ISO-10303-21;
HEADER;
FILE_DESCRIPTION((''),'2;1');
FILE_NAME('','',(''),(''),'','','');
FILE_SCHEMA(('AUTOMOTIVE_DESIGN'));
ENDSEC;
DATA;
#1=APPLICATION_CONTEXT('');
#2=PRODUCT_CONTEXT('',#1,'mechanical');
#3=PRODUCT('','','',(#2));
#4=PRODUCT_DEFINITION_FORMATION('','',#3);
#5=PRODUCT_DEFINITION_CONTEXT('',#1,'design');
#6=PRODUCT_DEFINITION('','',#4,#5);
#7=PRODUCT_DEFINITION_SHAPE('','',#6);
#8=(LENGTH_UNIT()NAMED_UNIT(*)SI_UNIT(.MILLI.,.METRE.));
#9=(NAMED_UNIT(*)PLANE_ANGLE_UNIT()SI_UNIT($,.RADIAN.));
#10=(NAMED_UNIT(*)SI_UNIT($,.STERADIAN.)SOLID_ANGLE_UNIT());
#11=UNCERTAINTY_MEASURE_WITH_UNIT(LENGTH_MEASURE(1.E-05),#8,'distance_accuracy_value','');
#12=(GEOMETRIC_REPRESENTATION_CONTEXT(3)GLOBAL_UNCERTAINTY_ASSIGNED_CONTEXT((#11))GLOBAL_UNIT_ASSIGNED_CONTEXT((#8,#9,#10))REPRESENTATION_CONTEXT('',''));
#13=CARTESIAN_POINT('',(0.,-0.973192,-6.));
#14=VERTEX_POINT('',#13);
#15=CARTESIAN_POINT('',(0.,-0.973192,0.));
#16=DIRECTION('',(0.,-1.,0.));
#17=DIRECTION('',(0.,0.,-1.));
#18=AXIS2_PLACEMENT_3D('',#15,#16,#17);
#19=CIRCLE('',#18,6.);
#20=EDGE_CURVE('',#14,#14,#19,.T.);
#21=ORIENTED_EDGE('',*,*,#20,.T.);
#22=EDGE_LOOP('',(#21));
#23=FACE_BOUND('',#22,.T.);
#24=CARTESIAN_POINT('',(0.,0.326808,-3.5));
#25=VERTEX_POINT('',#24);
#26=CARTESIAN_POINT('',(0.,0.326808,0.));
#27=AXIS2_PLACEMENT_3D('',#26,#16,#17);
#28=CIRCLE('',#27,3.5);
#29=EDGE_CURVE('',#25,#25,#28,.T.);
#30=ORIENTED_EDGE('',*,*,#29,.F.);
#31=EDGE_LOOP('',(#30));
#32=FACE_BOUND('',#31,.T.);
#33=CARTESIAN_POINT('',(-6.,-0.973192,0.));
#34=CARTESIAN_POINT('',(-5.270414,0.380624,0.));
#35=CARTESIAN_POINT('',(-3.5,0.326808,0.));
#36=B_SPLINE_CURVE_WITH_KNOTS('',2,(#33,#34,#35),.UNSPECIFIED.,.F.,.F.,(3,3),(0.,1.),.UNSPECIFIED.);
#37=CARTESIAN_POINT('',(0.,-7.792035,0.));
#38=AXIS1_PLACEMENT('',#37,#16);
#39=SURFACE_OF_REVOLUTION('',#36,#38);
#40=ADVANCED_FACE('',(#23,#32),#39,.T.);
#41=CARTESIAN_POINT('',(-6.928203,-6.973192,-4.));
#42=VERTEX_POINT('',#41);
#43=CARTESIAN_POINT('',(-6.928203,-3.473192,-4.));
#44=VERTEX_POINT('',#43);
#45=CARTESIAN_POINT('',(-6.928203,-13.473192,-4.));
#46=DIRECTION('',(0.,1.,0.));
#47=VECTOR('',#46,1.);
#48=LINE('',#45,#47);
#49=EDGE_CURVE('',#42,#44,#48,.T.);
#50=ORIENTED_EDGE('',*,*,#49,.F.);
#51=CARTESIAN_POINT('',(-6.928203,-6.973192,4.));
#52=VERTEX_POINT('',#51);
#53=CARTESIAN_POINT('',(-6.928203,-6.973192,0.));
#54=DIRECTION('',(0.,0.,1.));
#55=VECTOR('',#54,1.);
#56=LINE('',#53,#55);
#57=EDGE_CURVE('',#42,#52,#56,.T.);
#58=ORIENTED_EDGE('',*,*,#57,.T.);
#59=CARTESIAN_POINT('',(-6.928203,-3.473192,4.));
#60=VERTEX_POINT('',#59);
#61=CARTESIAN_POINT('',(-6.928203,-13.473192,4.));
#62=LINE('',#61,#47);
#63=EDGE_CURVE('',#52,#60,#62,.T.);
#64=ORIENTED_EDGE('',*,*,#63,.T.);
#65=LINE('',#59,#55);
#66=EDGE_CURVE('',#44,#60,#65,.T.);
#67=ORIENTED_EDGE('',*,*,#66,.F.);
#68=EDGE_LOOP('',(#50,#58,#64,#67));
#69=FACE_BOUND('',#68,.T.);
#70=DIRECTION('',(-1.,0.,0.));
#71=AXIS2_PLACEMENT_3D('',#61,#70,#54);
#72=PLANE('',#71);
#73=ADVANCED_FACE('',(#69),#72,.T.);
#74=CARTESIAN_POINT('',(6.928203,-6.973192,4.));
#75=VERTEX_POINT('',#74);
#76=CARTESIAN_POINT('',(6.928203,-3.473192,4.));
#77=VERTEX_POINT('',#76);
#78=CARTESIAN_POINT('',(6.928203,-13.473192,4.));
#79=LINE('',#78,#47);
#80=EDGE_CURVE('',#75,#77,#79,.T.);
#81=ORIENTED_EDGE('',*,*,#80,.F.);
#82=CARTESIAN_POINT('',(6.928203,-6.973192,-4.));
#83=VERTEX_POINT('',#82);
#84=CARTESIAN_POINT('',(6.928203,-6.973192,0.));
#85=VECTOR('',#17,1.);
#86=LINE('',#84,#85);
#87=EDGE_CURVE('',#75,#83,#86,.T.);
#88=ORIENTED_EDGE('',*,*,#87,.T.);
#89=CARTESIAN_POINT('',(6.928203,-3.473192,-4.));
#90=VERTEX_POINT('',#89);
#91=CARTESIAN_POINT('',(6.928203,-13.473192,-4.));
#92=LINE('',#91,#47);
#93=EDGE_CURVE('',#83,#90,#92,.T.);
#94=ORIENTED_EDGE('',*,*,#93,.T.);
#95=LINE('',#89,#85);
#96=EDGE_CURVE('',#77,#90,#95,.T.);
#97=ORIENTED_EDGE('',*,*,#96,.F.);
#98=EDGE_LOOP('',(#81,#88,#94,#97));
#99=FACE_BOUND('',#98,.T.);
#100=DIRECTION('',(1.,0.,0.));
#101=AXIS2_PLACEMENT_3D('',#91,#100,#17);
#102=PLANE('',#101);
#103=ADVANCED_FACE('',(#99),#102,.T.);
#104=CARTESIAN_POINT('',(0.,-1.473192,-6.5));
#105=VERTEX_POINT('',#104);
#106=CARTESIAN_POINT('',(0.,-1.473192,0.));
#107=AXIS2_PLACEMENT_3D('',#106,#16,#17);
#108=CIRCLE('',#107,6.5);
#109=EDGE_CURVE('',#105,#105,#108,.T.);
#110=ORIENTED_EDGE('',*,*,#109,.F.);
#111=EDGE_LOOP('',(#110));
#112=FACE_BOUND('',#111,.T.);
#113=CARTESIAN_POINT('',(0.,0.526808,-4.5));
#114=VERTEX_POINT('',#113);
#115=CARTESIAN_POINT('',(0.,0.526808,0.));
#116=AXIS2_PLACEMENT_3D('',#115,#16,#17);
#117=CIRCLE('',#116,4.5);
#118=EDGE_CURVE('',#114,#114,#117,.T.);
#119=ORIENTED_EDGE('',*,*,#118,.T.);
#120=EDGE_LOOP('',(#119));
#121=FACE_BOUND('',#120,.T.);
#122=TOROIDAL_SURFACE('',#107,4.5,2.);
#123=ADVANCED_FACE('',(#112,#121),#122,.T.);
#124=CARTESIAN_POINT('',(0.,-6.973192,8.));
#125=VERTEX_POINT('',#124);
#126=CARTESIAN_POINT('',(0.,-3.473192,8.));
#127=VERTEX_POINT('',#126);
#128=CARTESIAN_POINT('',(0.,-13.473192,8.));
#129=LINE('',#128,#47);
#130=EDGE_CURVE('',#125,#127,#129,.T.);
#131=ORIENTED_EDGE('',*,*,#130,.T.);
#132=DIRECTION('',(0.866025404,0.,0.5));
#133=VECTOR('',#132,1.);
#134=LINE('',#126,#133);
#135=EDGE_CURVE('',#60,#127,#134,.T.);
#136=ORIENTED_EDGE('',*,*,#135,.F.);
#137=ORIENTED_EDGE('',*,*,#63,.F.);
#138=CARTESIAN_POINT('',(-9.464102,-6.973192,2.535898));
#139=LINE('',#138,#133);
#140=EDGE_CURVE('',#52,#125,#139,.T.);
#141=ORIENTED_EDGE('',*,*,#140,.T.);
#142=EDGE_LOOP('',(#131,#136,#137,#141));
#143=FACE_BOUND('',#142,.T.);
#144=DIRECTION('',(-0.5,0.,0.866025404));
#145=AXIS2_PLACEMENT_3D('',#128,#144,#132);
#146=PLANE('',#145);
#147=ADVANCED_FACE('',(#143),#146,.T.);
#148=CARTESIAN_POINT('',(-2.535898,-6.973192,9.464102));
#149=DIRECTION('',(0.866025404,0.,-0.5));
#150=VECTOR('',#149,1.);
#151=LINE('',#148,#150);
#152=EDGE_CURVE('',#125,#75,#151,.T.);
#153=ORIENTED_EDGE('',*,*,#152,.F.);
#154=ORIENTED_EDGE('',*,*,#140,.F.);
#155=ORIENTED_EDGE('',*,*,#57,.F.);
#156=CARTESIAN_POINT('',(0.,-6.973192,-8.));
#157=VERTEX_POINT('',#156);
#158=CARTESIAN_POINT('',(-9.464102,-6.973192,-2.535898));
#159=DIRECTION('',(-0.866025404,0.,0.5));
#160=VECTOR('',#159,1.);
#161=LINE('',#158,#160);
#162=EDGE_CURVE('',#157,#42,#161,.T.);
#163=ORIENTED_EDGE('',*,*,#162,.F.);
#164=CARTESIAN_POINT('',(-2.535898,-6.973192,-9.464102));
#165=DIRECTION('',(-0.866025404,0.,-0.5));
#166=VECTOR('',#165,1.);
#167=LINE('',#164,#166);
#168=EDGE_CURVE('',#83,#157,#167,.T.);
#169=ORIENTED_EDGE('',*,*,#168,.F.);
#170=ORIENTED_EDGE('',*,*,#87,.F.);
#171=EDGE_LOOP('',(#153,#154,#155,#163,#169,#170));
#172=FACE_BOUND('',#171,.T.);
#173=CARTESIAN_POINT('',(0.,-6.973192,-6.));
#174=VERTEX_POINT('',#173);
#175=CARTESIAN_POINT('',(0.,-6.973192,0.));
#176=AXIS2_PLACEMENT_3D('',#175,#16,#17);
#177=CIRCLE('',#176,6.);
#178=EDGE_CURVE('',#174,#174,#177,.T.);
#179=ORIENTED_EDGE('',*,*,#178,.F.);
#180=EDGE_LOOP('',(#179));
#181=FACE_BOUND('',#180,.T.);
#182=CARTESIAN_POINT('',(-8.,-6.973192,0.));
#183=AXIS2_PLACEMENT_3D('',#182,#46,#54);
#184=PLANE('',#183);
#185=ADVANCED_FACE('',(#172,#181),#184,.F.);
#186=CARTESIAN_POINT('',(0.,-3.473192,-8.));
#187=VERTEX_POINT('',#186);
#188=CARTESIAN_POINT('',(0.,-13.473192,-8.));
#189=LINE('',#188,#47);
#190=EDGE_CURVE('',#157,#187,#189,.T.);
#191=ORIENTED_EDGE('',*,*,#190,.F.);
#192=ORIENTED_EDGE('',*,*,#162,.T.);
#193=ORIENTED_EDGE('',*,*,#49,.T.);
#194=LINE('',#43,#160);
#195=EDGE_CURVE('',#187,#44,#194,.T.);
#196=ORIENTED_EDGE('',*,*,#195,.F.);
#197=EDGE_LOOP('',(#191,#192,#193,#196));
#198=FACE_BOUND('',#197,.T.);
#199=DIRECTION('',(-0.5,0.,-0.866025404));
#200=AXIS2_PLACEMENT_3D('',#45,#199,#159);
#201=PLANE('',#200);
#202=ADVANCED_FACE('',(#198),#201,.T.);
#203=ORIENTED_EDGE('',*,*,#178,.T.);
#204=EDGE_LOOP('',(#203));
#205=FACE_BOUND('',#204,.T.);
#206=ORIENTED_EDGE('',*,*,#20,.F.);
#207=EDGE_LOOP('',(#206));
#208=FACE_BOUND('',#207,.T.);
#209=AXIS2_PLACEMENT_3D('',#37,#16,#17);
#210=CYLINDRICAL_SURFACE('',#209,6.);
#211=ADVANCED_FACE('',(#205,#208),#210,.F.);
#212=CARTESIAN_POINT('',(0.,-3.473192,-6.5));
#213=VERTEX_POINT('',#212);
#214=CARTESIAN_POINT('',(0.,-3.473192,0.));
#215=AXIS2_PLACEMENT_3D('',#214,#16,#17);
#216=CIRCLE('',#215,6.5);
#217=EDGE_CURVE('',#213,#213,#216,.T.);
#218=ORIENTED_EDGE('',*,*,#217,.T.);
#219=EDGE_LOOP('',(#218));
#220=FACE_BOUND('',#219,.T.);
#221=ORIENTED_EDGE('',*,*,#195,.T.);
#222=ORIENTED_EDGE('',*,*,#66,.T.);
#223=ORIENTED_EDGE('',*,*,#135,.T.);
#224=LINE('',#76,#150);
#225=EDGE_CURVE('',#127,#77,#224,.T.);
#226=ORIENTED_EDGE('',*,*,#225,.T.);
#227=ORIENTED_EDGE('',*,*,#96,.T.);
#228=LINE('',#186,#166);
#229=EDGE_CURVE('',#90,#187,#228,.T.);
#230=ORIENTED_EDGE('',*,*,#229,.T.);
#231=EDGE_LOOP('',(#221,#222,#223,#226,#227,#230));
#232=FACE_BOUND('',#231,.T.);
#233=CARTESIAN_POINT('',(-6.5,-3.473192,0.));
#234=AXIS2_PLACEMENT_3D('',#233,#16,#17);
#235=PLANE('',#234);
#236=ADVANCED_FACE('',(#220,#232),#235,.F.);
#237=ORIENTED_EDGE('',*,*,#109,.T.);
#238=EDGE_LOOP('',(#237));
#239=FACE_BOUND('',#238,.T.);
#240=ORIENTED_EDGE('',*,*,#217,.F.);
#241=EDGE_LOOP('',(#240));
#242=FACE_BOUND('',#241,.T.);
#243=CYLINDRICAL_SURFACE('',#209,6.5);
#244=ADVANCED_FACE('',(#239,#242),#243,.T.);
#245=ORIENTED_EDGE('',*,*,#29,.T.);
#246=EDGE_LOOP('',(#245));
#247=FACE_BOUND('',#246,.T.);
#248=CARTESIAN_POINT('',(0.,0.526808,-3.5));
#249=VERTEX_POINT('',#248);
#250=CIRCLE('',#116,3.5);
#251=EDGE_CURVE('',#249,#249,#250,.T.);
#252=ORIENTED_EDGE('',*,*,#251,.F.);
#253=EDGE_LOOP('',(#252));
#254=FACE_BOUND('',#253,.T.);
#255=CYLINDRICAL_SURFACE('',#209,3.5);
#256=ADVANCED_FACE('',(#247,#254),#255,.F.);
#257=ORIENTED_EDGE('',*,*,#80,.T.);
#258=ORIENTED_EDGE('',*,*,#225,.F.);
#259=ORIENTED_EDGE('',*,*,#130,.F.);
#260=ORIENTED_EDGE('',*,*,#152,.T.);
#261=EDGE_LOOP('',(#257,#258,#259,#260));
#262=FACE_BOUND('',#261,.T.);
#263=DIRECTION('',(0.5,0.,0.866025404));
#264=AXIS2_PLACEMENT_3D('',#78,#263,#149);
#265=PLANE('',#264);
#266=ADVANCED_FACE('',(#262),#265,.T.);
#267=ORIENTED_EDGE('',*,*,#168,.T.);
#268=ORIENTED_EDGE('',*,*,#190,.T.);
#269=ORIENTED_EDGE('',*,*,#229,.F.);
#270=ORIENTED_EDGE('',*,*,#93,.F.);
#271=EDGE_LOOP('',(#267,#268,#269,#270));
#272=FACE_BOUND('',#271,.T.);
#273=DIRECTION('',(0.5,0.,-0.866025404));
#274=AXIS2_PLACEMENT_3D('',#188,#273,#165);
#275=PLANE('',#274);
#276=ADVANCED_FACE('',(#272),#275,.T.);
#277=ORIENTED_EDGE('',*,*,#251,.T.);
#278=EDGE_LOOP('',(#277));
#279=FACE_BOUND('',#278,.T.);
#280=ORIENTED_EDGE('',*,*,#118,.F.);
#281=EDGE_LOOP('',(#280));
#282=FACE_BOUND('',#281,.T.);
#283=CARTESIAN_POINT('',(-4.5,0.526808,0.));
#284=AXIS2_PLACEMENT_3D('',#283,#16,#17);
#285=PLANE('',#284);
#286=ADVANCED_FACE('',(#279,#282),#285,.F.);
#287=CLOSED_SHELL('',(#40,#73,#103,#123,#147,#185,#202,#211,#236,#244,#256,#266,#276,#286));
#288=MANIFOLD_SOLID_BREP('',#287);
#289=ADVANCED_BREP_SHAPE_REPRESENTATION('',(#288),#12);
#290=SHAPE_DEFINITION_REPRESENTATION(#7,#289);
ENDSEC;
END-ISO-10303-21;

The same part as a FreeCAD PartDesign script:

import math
import FreeCAD as App
import Part
import Sketcher
Q = App.Units.Quantity

doc = App.newDocument("Part")
params = doc.addObject("Spreadsheet::Sheet", "Params")
for row, (alias, value) in enumerate([
    ("sketch1_radius", "2 mm"),
    ("sketch1_width", "2 mm"),
    ("sketch1_width2", "1 mm"),
    ("sketch1_height", "6 mm"),
    ("sketch1_height2", "0.2 mm"),
    ("revolution_angle", "360 deg"),
    ("sketch2_height", "8 mm"),
    ("sketch2_length", "8 mm"),
    ("pocket1_length", "10 mm"),
], start=1):
    params.set(f"A{row}", alias)
    params.set(f"B{row}", "=" + value)
    params.setAlias(f"B{row}", alias)

body = doc.addObject("PartDesign::Body", "Body")

# Sketch on XY plane
sketch1 = body.newObject("Sketcher::SketchObject", "Sketch")
sketch1.AttachmentSupport = (doc.getObject("XY_Plane"), [""])
sketch1.MapMode = "FlatFace"
sketch1.addGeometry(Part.LineSegment(App.Vector(-8, -6.973192, 0), App.Vector(-6, -6.973192, 0)), False)
sketch1.addGeometry(Part.LineSegment(App.Vector(-6, -6.973192, 0), App.Vector(-6, -0.973192, 0)), False)
sketch1.addGeometry(Part.BSplineCurve([App.Vector(-6, -0.973192, 0), App.Vector(-5.270414, 0.380624, 0), App.Vector(-3.5, 0.326808, 0)], [3, 3], [0, 1], False, 2, [1, 1, 1], False), False)
sketch1.addGeometry(Part.LineSegment(App.Vector(-3.5, 0.326808, 0), App.Vector(-3.5, 0.526808, 0)), False)
sketch1.addGeometry(Part.LineSegment(App.Vector(-3.5, 0.526808, 0), App.Vector(-4.5, 0.526808, 0)), False)
sketch1.addGeometry(Part.ArcOfCircle(Part.Circle(App.Vector(-4.5, -1.473192, 0), App.Vector(0, 0, 1), 2), math.radians(90), math.radians(180)), False)
sketch1.addGeometry(Part.LineSegment(App.Vector(-6.5, -1.473192, 0), App.Vector(-6.5, -3.473192, 0)), False)
sketch1.addGeometry(Part.LineSegment(App.Vector(-6.5, -3.473192, 0), App.Vector(-8, -3.473192, 0)), False)
sketch1.addGeometry(Part.LineSegment(App.Vector(-8, -3.473192, 0), App.Vector(-8, -6.973192, 0)), False)
sketch1.addConstraint(Sketcher.Constraint("Block", 2))
sketch1.addConstraint(Sketcher.Constraint("Coincident", 0, 2, 1, 1))
sketch1.addConstraint(Sketcher.Constraint("Coincident", 1, 2, 2, 1))
sketch1.addConstraint(Sketcher.Constraint("Coincident", 2, 2, 3, 1))
sketch1.addConstraint(Sketcher.Constraint("Coincident", 3, 2, 4, 1))
sketch1.addConstraint(Sketcher.Constraint("Tangent", 4, 2, 5, 1))
sketch1.addConstraint(Sketcher.Constraint("Tangent", 5, 2, 6, 1))
sketch1.addConstraint(Sketcher.Constraint("Coincident", 6, 2, 7, 1))
sketch1.addConstraint(Sketcher.Constraint("Coincident", 7, 2, 8, 1))
sketch1.addConstraint(Sketcher.Constraint("Coincident", 8, 2, 0, 1))
sketch1.addConstraint(Sketcher.Constraint("Horizontal", 0))
sketch1.addConstraint(Sketcher.Constraint("Vertical", 1))
sketch1.addConstraint(Sketcher.Constraint("Vertical", 3))
sketch1.addConstraint(Sketcher.Constraint("Horizontal", 4))
sketch1.addConstraint(Sketcher.Constraint("Vertical", 6))
sketch1.addConstraint(Sketcher.Constraint("Horizontal", 7))
sketch1.addConstraint(Sketcher.Constraint("Vertical", 8))
sketch1.addConstraint(Sketcher.Constraint("Equal", 0, 6))
sketch1.addConstraint(Sketcher.Constraint("Radius", 5, Q("2 mm")))
sketch1.addConstraint(Sketcher.Constraint("DistanceX", 0, 1, 0, 2, Q("2 mm")))
sketch1.addConstraint(Sketcher.Constraint("DistanceX", 4, 2, 4, 1, Q("1 mm")))
sketch1.addConstraint(Sketcher.Constraint("DistanceY", 1, 1, 1, 2, Q("6 mm")))
sketch1.addConstraint(Sketcher.Constraint("DistanceY", 3, 1, 3, 2, Q("0.2 mm")))
sketch1.setExpression("Constraints[18]", "Params.sketch1_radius")
sketch1.setExpression("Constraints[19]", "Params.sketch1_width")
sketch1.setExpression("Constraints[20]", "Params.sketch1_width2")
sketch1.setExpression("Constraints[21]", "Params.sketch1_height")
sketch1.setExpression("Constraints[22]", "Params.sketch1_height2")
revolution = body.newObject("PartDesign::Revolution", "Revolution")
revolution.Profile = sketch1
revolution.ReferenceAxis = (sketch1, ["V_Axis"])
revolution.setExpression("Angle", "Params.revolution_angle")

# Sketch on XZ plane
sketch2 = body.newObject("Sketcher::SketchObject", "Sketch001")
sketch2.AttachmentSupport = (doc.getObject("XZ_Plane"), [""])
sketch2.MapMode = "FlatFace"
sketch2.AttachmentOffset = App.Placement(App.Vector(0, 0, 3.473192), App.Rotation())
sketch2.addGeometry(Part.Circle(App.Vector(0, 0, 0), App.Vector(0, 0, 1), 12), False)
sketch2.addGeometry(Part.LineSegment(App.Vector(-7, -4, 0), App.Vector(0, -8, 0)), False)
sketch2.addGeometry(Part.LineSegment(App.Vector(0, -8, 0), App.Vector(7, -4, 0)), False)
sketch2.addGeometry(Part.LineSegment(App.Vector(7, -4, 0), App.Vector(7, 4, 0)), False)
sketch2.addGeometry(Part.LineSegment(App.Vector(7, 4, 0), App.Vector(0, 8, 0)), False)
sketch2.addGeometry(Part.LineSegment(App.Vector(0, 8, 0), App.Vector(-7, 4, 0)), False)
sketch2.addGeometry(Part.LineSegment(App.Vector(-7, 4, 0), App.Vector(-7, -4, 0)), False)
sketch2.addConstraint(Sketcher.Constraint("Coincident", 1, 2, 2, 1))
sketch2.addConstraint(Sketcher.Constraint("Coincident", 2, 2, 3, 1))
sketch2.addConstraint(Sketcher.Constraint("Coincident", 3, 2, 4, 1))
sketch2.addConstraint(Sketcher.Constraint("Coincident", 4, 2, 5, 1))
sketch2.addConstraint(Sketcher.Constraint("Coincident", 5, 2, 6, 1))
sketch2.addConstraint(Sketcher.Constraint("Coincident", 6, 2, 1, 1))
sketch2.addConstraint(Sketcher.Constraint("Vertical", 3))
sketch2.addConstraint(Sketcher.Constraint("Vertical", 6))
sketch2.addConstraint(Sketcher.Constraint("Coincident", 0, 3, -1, 1))
sketch2.addConstraint(Sketcher.Constraint("Symmetric", 1, 2, 4, 2, -1, 1))
sketch2.addConstraint(Sketcher.Constraint("Symmetric", 2, 2, 5, 2, -1, 1))
sketch2.addConstraint(Sketcher.Constraint("PointOnObject", 1, 2, -2))
sketch2.addConstraint(Sketcher.Constraint("Parallel", 1, 4))
sketch2.addConstraint(Sketcher.Constraint("Horizontal", 3, 2, 5, 2))
sketch2.addConstraint(Sketcher.Constraint("DistanceY", 3, 1, 3, 2, Q("8 mm")))
sketch2.addConstraint(Sketcher.Constraint("Angle", 1, Q("-30 deg")))
sketch2.addConstraint(Sketcher.Constraint("Distance", 1, Q("8 mm")))
sketch2.addConstraint(Sketcher.Constraint("Diameter", 0, Q("23.202292 mm")))
sketch2.setExpression("Constraints[14]", "Params.sketch2_height")
sketch2.setExpression("Constraints[16]", "Params.sketch2_length")
pocket1 = body.newObject("PartDesign::Pocket", "Pocket")
pocket1.Profile = sketch2
pocket1.setExpression("Length", "Params.pocket1_length")
pocket1.Reversed = True

doc.recompute()
